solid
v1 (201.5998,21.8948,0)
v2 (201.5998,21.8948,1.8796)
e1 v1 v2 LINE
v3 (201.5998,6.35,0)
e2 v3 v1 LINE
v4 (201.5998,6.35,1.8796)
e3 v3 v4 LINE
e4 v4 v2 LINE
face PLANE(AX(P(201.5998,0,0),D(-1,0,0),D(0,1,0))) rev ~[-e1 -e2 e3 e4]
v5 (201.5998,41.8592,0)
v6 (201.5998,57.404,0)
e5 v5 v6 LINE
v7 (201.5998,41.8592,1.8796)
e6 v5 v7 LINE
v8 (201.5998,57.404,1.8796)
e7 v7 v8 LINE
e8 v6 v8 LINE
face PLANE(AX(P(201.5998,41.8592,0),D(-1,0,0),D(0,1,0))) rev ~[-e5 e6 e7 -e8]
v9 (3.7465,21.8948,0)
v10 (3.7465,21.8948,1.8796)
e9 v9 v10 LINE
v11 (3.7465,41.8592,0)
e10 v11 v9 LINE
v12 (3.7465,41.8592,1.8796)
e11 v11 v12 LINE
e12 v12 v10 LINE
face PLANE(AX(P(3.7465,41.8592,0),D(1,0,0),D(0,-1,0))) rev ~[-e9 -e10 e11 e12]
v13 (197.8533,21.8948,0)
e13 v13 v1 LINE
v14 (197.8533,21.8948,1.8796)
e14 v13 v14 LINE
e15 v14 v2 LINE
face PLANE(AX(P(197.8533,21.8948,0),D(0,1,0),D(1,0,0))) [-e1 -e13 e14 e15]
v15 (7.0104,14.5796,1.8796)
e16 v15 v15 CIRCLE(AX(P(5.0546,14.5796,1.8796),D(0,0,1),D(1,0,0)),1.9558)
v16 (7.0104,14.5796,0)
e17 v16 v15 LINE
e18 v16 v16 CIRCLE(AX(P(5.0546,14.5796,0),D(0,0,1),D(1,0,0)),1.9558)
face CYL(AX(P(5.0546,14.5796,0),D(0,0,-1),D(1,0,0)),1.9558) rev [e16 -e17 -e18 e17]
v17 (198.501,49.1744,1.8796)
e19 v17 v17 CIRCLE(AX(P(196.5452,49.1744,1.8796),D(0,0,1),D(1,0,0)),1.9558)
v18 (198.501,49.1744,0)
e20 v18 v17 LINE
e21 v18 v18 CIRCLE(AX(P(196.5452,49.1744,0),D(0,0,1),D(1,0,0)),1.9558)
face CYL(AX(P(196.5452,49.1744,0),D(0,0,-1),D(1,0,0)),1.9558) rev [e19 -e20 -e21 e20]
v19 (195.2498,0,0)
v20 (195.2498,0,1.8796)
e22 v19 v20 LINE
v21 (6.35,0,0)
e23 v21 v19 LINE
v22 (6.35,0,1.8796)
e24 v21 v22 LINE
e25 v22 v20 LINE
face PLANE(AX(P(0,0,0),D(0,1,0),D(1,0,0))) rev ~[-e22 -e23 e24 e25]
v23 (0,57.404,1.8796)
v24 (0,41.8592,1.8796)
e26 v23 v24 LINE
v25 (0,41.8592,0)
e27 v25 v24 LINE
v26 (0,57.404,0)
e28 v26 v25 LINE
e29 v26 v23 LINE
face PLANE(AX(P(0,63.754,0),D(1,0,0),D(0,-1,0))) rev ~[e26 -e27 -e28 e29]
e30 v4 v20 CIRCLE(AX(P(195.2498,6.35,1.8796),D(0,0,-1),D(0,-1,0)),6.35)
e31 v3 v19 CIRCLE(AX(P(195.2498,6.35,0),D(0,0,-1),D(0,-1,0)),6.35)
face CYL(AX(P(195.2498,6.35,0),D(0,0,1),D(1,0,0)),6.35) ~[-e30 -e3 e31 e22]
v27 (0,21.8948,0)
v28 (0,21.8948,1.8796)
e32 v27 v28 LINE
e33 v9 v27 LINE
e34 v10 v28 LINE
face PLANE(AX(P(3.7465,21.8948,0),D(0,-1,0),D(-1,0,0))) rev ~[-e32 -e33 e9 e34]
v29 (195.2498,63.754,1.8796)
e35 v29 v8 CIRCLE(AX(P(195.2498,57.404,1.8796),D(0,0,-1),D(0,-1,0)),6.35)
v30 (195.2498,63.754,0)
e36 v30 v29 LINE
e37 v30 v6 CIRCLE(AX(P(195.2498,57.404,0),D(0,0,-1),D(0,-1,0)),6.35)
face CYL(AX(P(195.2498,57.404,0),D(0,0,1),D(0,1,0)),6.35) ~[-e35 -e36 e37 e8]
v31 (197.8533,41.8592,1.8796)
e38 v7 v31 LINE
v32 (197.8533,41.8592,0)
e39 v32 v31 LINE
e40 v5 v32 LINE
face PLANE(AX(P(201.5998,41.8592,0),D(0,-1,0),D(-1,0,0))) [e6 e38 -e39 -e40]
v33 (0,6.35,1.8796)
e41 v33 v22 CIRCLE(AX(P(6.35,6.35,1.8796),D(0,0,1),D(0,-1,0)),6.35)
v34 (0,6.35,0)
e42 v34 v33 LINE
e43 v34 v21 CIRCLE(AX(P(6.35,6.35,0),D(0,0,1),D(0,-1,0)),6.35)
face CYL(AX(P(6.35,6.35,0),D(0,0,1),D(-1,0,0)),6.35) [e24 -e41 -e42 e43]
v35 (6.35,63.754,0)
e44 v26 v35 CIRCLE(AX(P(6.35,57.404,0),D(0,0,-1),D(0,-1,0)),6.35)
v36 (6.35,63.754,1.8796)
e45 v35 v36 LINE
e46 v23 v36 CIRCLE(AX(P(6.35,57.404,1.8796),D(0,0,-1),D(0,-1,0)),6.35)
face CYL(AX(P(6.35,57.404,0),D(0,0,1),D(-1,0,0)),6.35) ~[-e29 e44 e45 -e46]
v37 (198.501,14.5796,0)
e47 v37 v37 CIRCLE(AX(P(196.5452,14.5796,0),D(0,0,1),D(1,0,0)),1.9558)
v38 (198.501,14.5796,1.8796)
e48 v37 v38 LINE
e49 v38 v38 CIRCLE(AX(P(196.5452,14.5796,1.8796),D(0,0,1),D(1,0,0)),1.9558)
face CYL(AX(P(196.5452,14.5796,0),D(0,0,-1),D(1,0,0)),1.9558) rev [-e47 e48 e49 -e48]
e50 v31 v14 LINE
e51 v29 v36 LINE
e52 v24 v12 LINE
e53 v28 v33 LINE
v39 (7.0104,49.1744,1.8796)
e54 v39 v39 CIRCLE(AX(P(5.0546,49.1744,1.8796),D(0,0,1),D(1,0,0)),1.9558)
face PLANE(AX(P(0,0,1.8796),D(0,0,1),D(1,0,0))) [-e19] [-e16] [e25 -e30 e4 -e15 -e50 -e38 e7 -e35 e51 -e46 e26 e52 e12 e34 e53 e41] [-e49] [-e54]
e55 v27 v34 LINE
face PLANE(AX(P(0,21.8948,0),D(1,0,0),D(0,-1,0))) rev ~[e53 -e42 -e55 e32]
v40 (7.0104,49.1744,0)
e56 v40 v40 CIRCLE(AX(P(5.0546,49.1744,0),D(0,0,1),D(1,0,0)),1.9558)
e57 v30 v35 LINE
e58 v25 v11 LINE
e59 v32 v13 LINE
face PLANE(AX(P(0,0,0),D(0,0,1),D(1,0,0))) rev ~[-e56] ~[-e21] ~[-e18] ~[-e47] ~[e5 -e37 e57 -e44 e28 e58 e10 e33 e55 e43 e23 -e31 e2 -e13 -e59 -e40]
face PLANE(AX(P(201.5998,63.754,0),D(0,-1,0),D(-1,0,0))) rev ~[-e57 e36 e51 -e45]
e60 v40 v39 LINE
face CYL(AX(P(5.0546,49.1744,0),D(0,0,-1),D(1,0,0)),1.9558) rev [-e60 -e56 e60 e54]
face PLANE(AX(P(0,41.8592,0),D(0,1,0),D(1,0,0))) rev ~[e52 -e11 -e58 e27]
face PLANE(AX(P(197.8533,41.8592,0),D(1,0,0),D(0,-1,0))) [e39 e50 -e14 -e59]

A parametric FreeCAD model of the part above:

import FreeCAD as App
import Part
import Sketcher

V = App.Vector
Q = App.Units.Quantity


def edges_at(feature, points):
    """Names of the edges that pass closest to the given points."""
    edges = feature.Shape.Edges
    near = lambda p: min(range(len(edges)), key=lambda i: edges[i].distToShape(Part.Vertex(*p))[0])
    return sorted({f"Edge{near(p) + 1}" for p in points})

doc = App.newDocument("Part")
body = doc.addObject("PartDesign::Body", "Body")

# Sketch on XY plane
sketch1 = body.newObject("Sketcher::SketchObject", "Sketch")
sketch1.AttachmentSupport = (doc.getObject("XY_Plane"), [""])
sketch1.MapMode = "FlatFace"
sketch1.addGeometry(Part.LineSegment(V(0, 21.9, 0), V(0, 0, 0)), False)
sketch1.addGeometry(Part.LineSegment(V(0, 0, 0), V(201.6, 0, 0)), False)
sketch1.addGeometry(Part.LineSegment(V(201.6, 0, 0), V(201.6, 21.9, 0)), False)
sketch1.addGeometry(Part.LineSegment(V(201.6, 21.9, 0), V(197.9, 21.9, 0)), False)
sketch1.addGeometry(Part.LineSegment(V(197.9, 21.9, 0), V(197.9, 41.9, 0)), False)
sketch1.addGeometry(Part.LineSegment(V(197.9, 41.9, 0), V(201.6, 41.9, 0)), False)
sketch1.addGeometry(Part.LineSegment(V(201.6, 41.9, 0), V(201.6, 63.8, 0)), False)
sketch1.addGeometry(Part.LineSegment(V(201.6, 63.8, 0), V(0, 63.8, 0)), False)
sketch1.addGeometry(Part.LineSegment(V(0, 63.8, 0), V(0, 41.9, 0)), False)
sketch1.addGeometry(Part.LineSegment(V(0, 41.9, 0), V(3.7, 41.9, 0)), False)
sketch1.addGeometry(Part.LineSegment(V(3.7, 41.9, 0), V(3.7, 21.9, 0)), False)
sketch1.addGeometry(Part.LineSegment(V(3.7, 21.9, 0), V(0, 21.9, 0)), False)
sketch1.addGeometry(Part.Circle(V(5.1, 14.6, 0), V(0, 0, 1), 2), False)
sketch1.addGeometry(Part.Circle(V(196.5, 14.6, 0), V(0, 0, 1), 2), False)
sketch1.addGeometry(Part.Circle(V(5.1, 49.2, 0), V(0, 0, 1), 2), False)
sketch1.addGeometry(Part.Circle(V(196.5, 49.2, 0), V(0, 0, 1), 2), False)
sketch1.addConstraint(Sketcher.Constraint("Coincident", 0, 2, 1, 1))
sketch1.addConstraint(Sketcher.Constraint("Coincident", 1, 2, 2, 1))
sketch1.addConstraint(Sketcher.Constraint("Coincident", 2, 2, 3, 1))
sketch1.addConstraint(Sketcher.Constraint("Coincident", 3, 2, 4, 1))
sketch1.addConstraint(Sketcher.Constraint("Coincident", 4, 2, 5, 1))
sketch1.addConstraint(Sketcher.Constraint("Coincident", 5, 2, 6, 1))
sketch1.addConstraint(Sketcher.Constraint("Coincident", 6, 2, 7, 1))
sketch1.addConstraint(Sketcher.Constraint("Coincident", 7, 2, 8, 1))
sketch1.addConstraint(Sketcher.Constraint("Coincident", 8, 2, 9, 1))
sketch1.addConstraint(Sketcher.Constraint("Coincident", 9, 2, 10, 1))
sketch1.addConstraint(Sketcher.Constraint("Coincident", 10, 2, 11, 1))
sketch1.addConstraint(Sketcher.Constraint("Coincident", 11, 2, 0, 1))
sketch1.addConstraint(Sketcher.Constraint("Vertical", 0))
sketch1.addConstraint(Sketcher.Constraint("Horizontal", 1))
sketch1.addConstraint(Sketcher.Constraint("Vertical", 2))
sketch1.addConstraint(Sketcher.Constraint("Horizontal", 3))
sketch1.addConstraint(Sketcher.Constraint("Vertical", 4))
sketch1.addConstraint(Sketcher.Constraint("Horizontal", 5))
sketch1.addConstraint(Sketcher.Constraint("Vertical", 6))
sketch1.addConstraint(Sketcher.Constraint("Horizontal", 7))
sketch1.addConstraint(Sketcher.Constraint("Vertical", 8))
sketch1.addConstraint(Sketcher.Constraint("Horizontal", 9))
sketch1.addConstraint(Sketcher.Constraint("Vertical", 10))
sketch1.addConstraint(Sketcher.Constraint("Horizontal", 11))
sketch1.addConstraint(Sketcher.Constraint("Coincident", 0, 2, -1, 1))
sketch1.addConstraint(Sketcher.Constraint("Equal", 12, 13))
sketch1.addConstraint(Sketcher.Constraint("Equal", 13, 14))
sketch1.addConstraint(Sketcher.Constraint("Equal", 14, 15))
sketch1.addConstraint(Sketcher.Constraint("PointOnObject", 7, 2, -2))
sketch1.addConstraint(Sketcher.Constraint("Horizontal", 12, 3, 13, 3))
sketch1.addConstraint(Sketcher.Constraint("Horizontal", 14, 3, 15, 3))
sketch1.addConstraint(Sketcher.Constraint("Horizontal", 5, 2, 8, 2))
sketch1.addConstraint(Sketcher.Constraint("Horizontal", 3, 2, 10, 2))
sketch1.addConstraint(Sketcher.Constraint("Vertical", 12, 3, 14, 3))
sketch1.addConstraint(Sketcher.Constraint("Vertical", 13, 3, 15, 3))
sketch1.addConstraint(Sketcher.Constraint("Vertical", 2, 2, 5, 2))
sketch1.addConstraint(Sketcher.Constraint("Equal", 5, 9))
sketch1.addConstraint(Sketcher.Constraint("Equal", 2, 6))
sketch1.addConstraint(Sketcher.Constraint("Diameter", 12, Q("0.154 in")))
sketch1.addConstraint(Sketcher.Constraint("DistanceX", 1, 1, 1, 2, Q("7.937 in")))
sketch1.addConstraint(Sketcher.Constraint("DistanceY", 0, 2, 0, 1, Q("0.862 in")))
sketch1.addConstraint(Sketcher.Constraint("DistanceY", 4, 1, 4, 2, Q("0.786 in")))
sketch1.addConstraint(Sketcher.Constraint("DistanceX", 3, 2, 3, 1, Q("0.1475 in")))
sketch1.addConstraint(Sketcher.Constraint("DistanceX", -1, 1, 12, 3, Q("0.199 in")))
sketch1.addConstraint(Sketcher.Constraint("DistanceY", -1, 1, 12, 3, Q("0.574 in")))
sketch1.addConstraint(Sketcher.Constraint("DistanceX", -1, 1, 13, 3, Q("7.738 in")))
sketch1.addConstraint(Sketcher.Constraint("DistanceY", -1, 1, 14, 3, Q("1.936 in")))
pad1 = body.newObject("PartDesign::Pad", "Pad")
pad1.Profile = sketch1
pad1.Length = Q("0.074 in")
doc.recompute()

fillet = body.newObject("PartDesign::Fillet", "Fillet")
fillet.Base = (pad1, edges_at(pad1, [
    (0, 63.754, 0.94),
    (201.6, 63.754, 0.94),
    (201.6, 0, 0.94),
    (0, 0, 0.94),
]))
fillet.Radius = Q("0.25 in")

doc.recompute()
